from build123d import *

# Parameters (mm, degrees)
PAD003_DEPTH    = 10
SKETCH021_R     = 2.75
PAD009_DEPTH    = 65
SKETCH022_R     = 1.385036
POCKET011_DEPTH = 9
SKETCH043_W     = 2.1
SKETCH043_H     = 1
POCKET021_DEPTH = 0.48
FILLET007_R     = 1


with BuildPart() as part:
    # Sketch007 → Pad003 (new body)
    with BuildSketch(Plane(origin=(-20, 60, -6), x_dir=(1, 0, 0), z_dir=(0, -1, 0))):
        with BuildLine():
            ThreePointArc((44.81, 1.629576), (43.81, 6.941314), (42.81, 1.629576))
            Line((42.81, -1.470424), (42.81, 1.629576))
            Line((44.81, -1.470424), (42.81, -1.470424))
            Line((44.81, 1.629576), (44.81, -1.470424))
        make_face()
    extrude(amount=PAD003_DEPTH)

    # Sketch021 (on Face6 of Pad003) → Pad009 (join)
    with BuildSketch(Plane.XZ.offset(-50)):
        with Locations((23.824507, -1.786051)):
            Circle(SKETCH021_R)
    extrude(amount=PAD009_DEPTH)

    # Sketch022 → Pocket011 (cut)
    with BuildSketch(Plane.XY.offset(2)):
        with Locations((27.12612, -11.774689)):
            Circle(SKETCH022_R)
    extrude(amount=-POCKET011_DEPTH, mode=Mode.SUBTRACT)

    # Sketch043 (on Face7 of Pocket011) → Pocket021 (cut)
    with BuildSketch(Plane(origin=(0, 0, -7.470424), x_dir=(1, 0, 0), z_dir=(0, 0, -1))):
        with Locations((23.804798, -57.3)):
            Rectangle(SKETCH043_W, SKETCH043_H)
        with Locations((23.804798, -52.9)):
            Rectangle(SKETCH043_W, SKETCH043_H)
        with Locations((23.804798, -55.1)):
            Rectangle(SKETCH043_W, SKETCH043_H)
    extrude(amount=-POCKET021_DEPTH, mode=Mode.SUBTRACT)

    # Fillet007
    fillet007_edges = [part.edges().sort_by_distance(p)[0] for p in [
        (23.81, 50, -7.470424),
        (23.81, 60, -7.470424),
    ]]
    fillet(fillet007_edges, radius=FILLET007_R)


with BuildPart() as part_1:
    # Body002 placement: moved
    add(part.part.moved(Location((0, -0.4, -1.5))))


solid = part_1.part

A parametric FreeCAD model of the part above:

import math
import FreeCAD as App
import Part
import Sketcher
from FreeCAD import Vector
Q = App.Units.Quantity


def edges_at(feature, points):
    """Names of the edges that pass closest to the given points."""
    edges = feature.Shape.Edges
    near = lambda p: min(range(len(edges)), key=lambda i: edges[i].distToShape(Part.Vertex(*p))[0])
    return sorted({f"Edge{near(p) + 1}" for p in points})

doc = App.newDocument("Part")
body = doc.addObject("PartDesign::Body", "Body")

# Sketch on XZ plane
sketch1 = body.newObject("Sketcher::SketchObject", "Sketch")
sketch1.AttachmentSupport = (doc.getObject("XZ_Plane"), [""])
sketch1.MapMode = "FlatFace"
sketch1.AttachmentOffset = App.Placement(Vector(0, 0, -60), App.Rotation())
sketch1.addGeometry(Part.ArcOfCircle(Part.Circle(Vector(23.81, -1.808686, 0), Vector(0, 0, 1), 2.75), math.radians(-68.676315), math.radians(248.676315)), False)
sketch1.addGeometry(Part.LineSegment(Vector(22.81, -4.370424, 0), Vector(22.81, -7.470424, 0)), False)
sketch1.addGeometry(Part.LineSegment(Vector(22.81, -7.470424, 0), Vector(24.81, -7.470424, 0)), False)
sketch1.addGeometry(Part.LineSegment(Vector(24.81, -7.470424, 0), Vector(24.81, -4.370424, 0)), False)
sketch1.addConstraint(Sketcher.Constraint("Coincident", 0, 2, 1, 1))
sketch1.addConstraint(Sketcher.Constraint("Coincident", 1, 2, 2, 1))
sketch1.addConstraint(Sketcher.Constraint("Coincident", 2, 2, 3, 1))
sketch1.addConstraint(Sketcher.Constraint("Coincident", 3, 2, 0, 1))
sketch1.addConstraint(Sketcher.Constraint("Vertical", 1))
sketch1.addConstraint(Sketcher.Constraint("Horizontal", 2))
sketch1.addConstraint(Sketcher.Constraint("Vertical", 3))
sketch1.addConstraint(Sketcher.Constraint("Horizontal", 0, 2, 3, 2))
sketch1.addConstraint(Sketcher.Constraint("DistanceX", 2, 1, 2, 2, Q("2 mm")))
sketch1.addConstraint(Sketcher.Constraint("Radius", 0, Q("2.75 mm")))
sketch1.addConstraint(Sketcher.Constraint("DistanceY", 1, 2, 1, 1, Q("3.1 mm")))
sketch1.addConstraint(Sketcher.Constraint("DistanceX", -1, 1, 0, 3, Q("23.81 mm")))
sketch1.addConstraint(Sketcher.Constraint("DistanceY", 0, 3, -1, 1, Q("1.808686 mm")))
pad1 = body.newObject("PartDesign::Pad", "Pad")
pad1.Profile = sketch1
pad1.Length = 10

# Sketch on XZ plane
sketch2 = body.newObject("Sketcher::SketchObject", "Sketch001")
sketch2.AttachmentSupport = (doc.getObject("XZ_Plane"), [""])
sketch2.MapMode = "FlatFace"
sketch2.AttachmentOffset = App.Placement(Vector(0, 0, -50), App.Rotation())
sketch2.addGeometry(Part.Circle(Vector(23.824507, -1.786051, 0), Vector(0, 0, 1), 2.75), False)
sketch2.addConstraint(Sketcher.Constraint("Diameter", 0, Q("5.5 mm")))
sketch2.addConstraint(Sketcher.Constraint("DistanceY", 0, 3, -1, 1, Q("1.786051 mm")))
sketch2.addConstraint(Sketcher.Constraint("DistanceX", -1, 1, 0, 3, Q("23.824507 mm")))
pad2 = body.newObject("PartDesign::Pad", "Pad001")
pad2.Profile = sketch2
pad2.Length = 65

# Sketch on XY plane
sketch3 = body.newObject("Sketcher::SketchObject", "Sketch002")
sketch3.AttachmentSupport = (doc.getObject("XY_Plane"), [""])
sketch3.MapMode = "FlatFace"
sketch3.AttachmentOffset = App.Placement(Vector(0, 0, 2), App.Rotation())
sketch3.addGeometry(Part.Circle(Vector(27.12612, -11.774689, 0), Vector(0, 0, 1), 1.385036), False)
sketch3.addConstraint(Sketcher.Constraint("Diameter", 0, Q("2.770072 mm")))
sketch3.addConstraint(Sketcher.Constraint("DistanceX", -1, 1, 0, 3, Q("27.12612 mm")))
sketch3.addConstraint(Sketcher.Constraint("DistanceY", 0, 3, -1, 1, Q("11.774689 mm")))
pocket1 = body.newObject("PartDesign::Pocket", "Pocket")
pocket1.Profile = sketch3
pocket1.Length = 9

# Sketch on XY plane
sketch4 = body.newObject("Sketcher::SketchObject", "Sketch003")
sketch4.AttachmentSupport = (doc.getObject("XY_Plane"), [""])
sketch4.MapMode = "FlatFace"
sketch4.AttachmentOffset = App.Placement(Vector(0, 0, -7.470424), App.Rotation())
sketch4.addGeometry(Part.LineSegment(Vector(22.754798, 56.8, 0), Vector(22.754798, 57.8, 0)), False)
sketch4.addGeometry(Part.LineSegment(Vector(22.754798, 57.8, 0), Vector(24.854798, 57.8, 0)), False)
sketch4.addGeometry(Part.LineSegment(Vector(24.854798, 57.8, 0), Vector(24.854798, 56.8, 0)), False)
sketch4.addGeometry(Part.LineSegment(Vector(24.854798, 56.8, 0), Vector(22.754798, 56.8, 0)), False)
sketch4.addGeometry(Part.LineSegment(Vector(22.754798, 52.4, 0), Vector(22.754798, 53.4, 0)), False)
sketch4.addGeometry(Part.LineSegment(Vector(22.754798, 53.4, 0), Vector(24.854798, 53.4, 0)), False)
sketch4.addGeometry(Part.LineSegment(Vector(24.854798, 53.4, 0), Vector(24.854798, 52.4, 0)), False)
sketch4.addGeometry(Part.LineSegment(Vector(24.854798, 52.4, 0), Vector(22.754798, 52.4, 0)), False)
sketch4.addGeometry(Part.LineSegment(Vector(22.754798, 54.6, 0), Vector(22.754798, 55.6, 0)), False)
sketch4.addGeometry(Part.LineSegment(Vector(22.754798, 55.6, 0), Vector(24.854798, 55.6, 0)), False)
sketch4.addGeometry(Part.LineSegment(Vector(24.854798, 55.6, 0), Vector(24.854798, 54.6, 0)), False)
sketch4.addGeometry(Part.LineSegment(Vector(24.854798, 54.6, 0), Vector(22.754798, 54.6, 0)), False)
sketch4.addConstraint(Sketcher.Constraint("Coincident", 0, 2, 1, 1))
sketch4.addConstraint(Sketcher.Constraint("Coincident", 1, 2, 2, 1))
sketch4.addConstraint(Sketcher.Constraint("Coincident", 2, 2, 3, 1))
sketch4.addConstraint(Sketcher.Constraint("Coincident", 3, 2, 0, 1))
sketch4.addConstraint(Sketcher.Constraint("Coincident", 4, 2, 5, 1))
sketch4.addConstraint(Sketcher.Constraint("Coincident", 5, 2, 6, 1))
sketch4.addConstraint(Sketcher.Constraint("Coincident", 6, 2, 7, 1))
sketch4.addConstraint(Sketcher.Constraint("Coincident", 7, 2, 4, 1))
sketch4.addConstraint(Sketcher.Constraint("Coincident", 8, 2, 9, 1))
sketch4.addConstraint(Sketcher.Constraint("Coincident", 9, 2, 10, 1))
sketch4.addConstraint(Sketcher.Constraint("Coincident", 10, 2, 11, 1))
sketch4.addConstraint(Sketcher.Constraint("Coincident", 11, 2, 8, 1))
sketch4.addConstraint(Sketcher.Constraint("Vertical", 0))
sketch4.addConstraint(Sketcher.Constraint("Horizontal", 1))
sketch4.addConstraint(Sketcher.Constraint("Vertical", 2))
sketch4.addConstraint(Sketcher.Constraint("Horizontal", 3))
sketch4.addConstraint(Sketcher.Constraint("Vertical", 4))
sketch4.addConstraint(Sketcher.Constraint("Horizontal", 5))
sketch4.addConstraint(Sketcher.Constraint("Vertical", 6))
sketch4.addConstraint(Sketcher.Constraint("Horizontal", 7))
sketch4.addConstraint(Sketcher.Constraint("Vertical", 8))
sketch4.addConstraint(Sketcher.Constraint("Horizontal", 9))
sketch4.addConstraint(Sketcher.Constraint("Vertical", 10))
sketch4.addConstraint(Sketcher.Constraint("Horizontal", 11))
sketch4.addConstraint(Sketcher.Constraint("Vertical", 3, 2, 4, 2))
sketch4.addConstraint(Sketcher.Constraint("Vertical", 2, 2, 5, 2))
sketch4.addConstraint(Sketcher.Constraint("Vertical", 7, 2, 8, 2))
sketch4.addConstraint(Sketcher.Constraint("Vertical", 6, 2, 9, 2))
sketch4.addConstraint(Sketcher.Constraint("Equal", 2, 4))
sketch4.addConstraint(Sketcher.Constraint("Equal", 6, 8))
sketch4.addConstraint(Sketcher.Constraint("DistanceY", 0, 1, 0, 2, Q("1 mm")))
sketch4.addConstraint(Sketcher.Constraint("DistanceX", 1, 1, 1, 2, Q("2.1 mm")))
sketch4.addConstraint(Sketcher.Constraint("DistanceY", -1, 1, 0, 2, Q("57.8 mm")))
sketch4.addConstraint(Sketcher.Constraint("DistanceY", -1, 1, 4, 2, Q("53.4 mm")))
sketch4.addConstraint(Sketcher.Constraint("DistanceY", -1, 1, 8, 2, Q("55.6 mm")))
sketch4.addConstraint(Sketcher.Constraint("DistanceX", -1, 1, 0, 2, Q("22.754798 mm")))
pocket2 = body.newObject("PartDesign::Pocket", "Pocket001")
pocket2.Profile = sketch4
pocket2.Length = 0.48
pocket2.Reversed = True
doc.recompute()

fillet = body.newObject("PartDesign::Fillet", "Fillet")
fillet.Base = (pocket2, edges_at(pocket2, [(23.81, 50, -7.47), (23.81, 60, -7.47)]))
fillet.Radius = 1
body2 = doc.addObject("PartDesign::Body", "Body001")
doc.recompute()

body.Placement = App.Placement(Vector(0, -0.4, -1.5), App.Rotation(Vector(0, 0, 1), 0))
boolean = body2.newObject("PartDesign::Boolean", "Boolean")
boolean.Type = "Fuse"
boolean.addObjects([body])

doc.recompute()
